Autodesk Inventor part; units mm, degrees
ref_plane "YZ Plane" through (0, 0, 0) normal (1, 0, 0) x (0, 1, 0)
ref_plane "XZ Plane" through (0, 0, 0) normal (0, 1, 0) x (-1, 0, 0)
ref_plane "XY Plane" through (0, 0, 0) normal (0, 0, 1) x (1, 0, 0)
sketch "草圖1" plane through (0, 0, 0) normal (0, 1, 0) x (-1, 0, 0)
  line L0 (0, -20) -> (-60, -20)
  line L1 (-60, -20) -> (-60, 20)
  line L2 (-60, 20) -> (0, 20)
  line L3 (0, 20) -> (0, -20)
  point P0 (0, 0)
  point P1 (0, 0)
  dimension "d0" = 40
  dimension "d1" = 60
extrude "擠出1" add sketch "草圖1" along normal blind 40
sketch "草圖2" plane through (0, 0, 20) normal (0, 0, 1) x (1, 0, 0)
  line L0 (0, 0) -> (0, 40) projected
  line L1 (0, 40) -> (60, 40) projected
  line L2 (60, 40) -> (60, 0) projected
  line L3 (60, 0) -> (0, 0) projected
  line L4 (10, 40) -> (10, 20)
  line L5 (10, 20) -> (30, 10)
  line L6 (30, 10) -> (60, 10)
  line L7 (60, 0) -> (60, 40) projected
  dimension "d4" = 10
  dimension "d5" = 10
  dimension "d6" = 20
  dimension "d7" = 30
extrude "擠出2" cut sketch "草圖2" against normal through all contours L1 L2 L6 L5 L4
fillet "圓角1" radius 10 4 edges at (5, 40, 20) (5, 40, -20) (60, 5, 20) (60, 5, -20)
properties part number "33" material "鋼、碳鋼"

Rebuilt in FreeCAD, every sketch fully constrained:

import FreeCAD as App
import Part
import Sketcher


def edges_at(feature, points):
    """Names of the edges that pass closest to the given points."""
    edges = feature.Shape.Edges
    near = lambda p: min(range(len(edges)), key=lambda i: edges[i].distToShape(Part.Vertex(*p))[0])
    return sorted({f"Edge{near(p) + 1}" for p in points})

doc = App.newDocument("Part")
body = doc.addObject("PartDesign::Body", "Body")

sketch1 = doc.addObject("Sketcher::SketchObject", "Sketch")
body.addObject(sketch1)
sketch1.AttachmentSupport = (doc.XZ_Plane, [""])
sketch1.MapMode = "FlatFace"
sketch1.addGeometry([
    Part.LineSegment(App.Vector(60, -20, 0), App.Vector(0, -20, 0)),
    Part.LineSegment(App.Vector(0, -20, 0), App.Vector(0, 20, 0)),
    Part.LineSegment(App.Vector(0, 20, 0), App.Vector(60, 20, 0)),
    Part.LineSegment(App.Vector(60, 20, 0), App.Vector(60, -20, 0)),
], False)
sketch1.addConstraint([
    Sketcher.Constraint("Coincident", 0, 2, 1, 1),
    Sketcher.Constraint("Coincident", 1, 2, 2, 1),
    Sketcher.Constraint("Coincident", 2, 2, 3, 1),
    Sketcher.Constraint("Coincident", 3, 2, 0, 1),
    Sketcher.Constraint("Horizontal", 0),
    Sketcher.Constraint("Vertical", 1),
    Sketcher.Constraint("Horizontal", 2),
    Sketcher.Constraint("Vertical", 3),
    Sketcher.Constraint("Symmetric", 0, 2, 1, 2, -1, 1),
    Sketcher.Constraint("DistanceX", 0, 2, 0, 1, 60.0),
    Sketcher.Constraint("DistanceY", 1, 1, 1, 2, 40.0),
])
pad1 = doc.addObject("PartDesign::Pad", "Pad")
body.addObject(pad1)
pad1.Profile = sketch1
pad1.Length = 40
pad1.Reversed = True

sketch2 = doc.addObject("Sketcher::SketchObject", "Sketch001")
body.addObject(sketch2)
sketch2.AttachmentSupport = (doc.XY_Plane, [""])
sketch2.MapMode = "FlatFace"
sketch2.AttachmentOffset = App.Placement(App.Vector(0, 0, 20), App.Rotation())
sketch2.addGeometry([
    Part.LineSegment(App.Vector(60, 40, 0), App.Vector(10, 40, 0)),
    Part.LineSegment(App.Vector(10, 40, 0), App.Vector(10, 20, 0)),
    Part.LineSegment(App.Vector(10, 20, 0), App.Vector(30, 10, 0)),
    Part.LineSegment(App.Vector(30, 10, 0), App.Vector(60, 10, 0)),
    Part.LineSegment(App.Vector(60, 10, 0), App.Vector(60, 40, 0)),
], False)
sketch2.addConstraint([
    Sketcher.Constraint("Coincident", 0, 2, 1, 1),
    Sketcher.Constraint("Coincident", 1, 2, 2, 1),
    Sketcher.Constraint("Coincident", 2, 2, 3, 1),
    Sketcher.Constraint("Coincident", 3, 2, 4, 1),
    Sketcher.Constraint("Coincident", 4, 2, 0, 1),
    Sketcher.Constraint("Horizontal", 0),
    Sketcher.Constraint("Vertical", 1),
    Sketcher.Constraint("Horizontal", 3),
    Sketcher.Constraint("Vertical", 4),
    Sketcher.Constraint("Equal", 3, 4),
    Sketcher.Constraint("DistanceX", 3, 1, 3, 2, 30.0),
    Sketcher.Constraint("DistanceY", 1, 2, 1, 1, 20.0),
    Sketcher.Constraint("DistanceX", -1, 1, 0, 2, 10.0),
    Sketcher.Constraint("DistanceY", -1, 1, 1, 2, 20.0),
    Sketcher.Constraint("DistanceX", -1, 1, 2, 2, 30.0),
])
pocket1 = doc.addObject("PartDesign::Pocket", "Pocket")
body.addObject(pocket1)
pocket1.Profile = sketch2
pocket1.Type = "ThroughAll"
doc.recompute()

fillet = doc.addObject("PartDesign::Fillet", "Fillet")
body.addObject(fillet)
fillet.Base = (pocket1, edges_at(pocket1, [
    (5, 40, 20),
    (5, 40, -20),
    (60, 5, 20),
    (60, 5, -20),
]))
fillet.Radius = 10

doc.recompute()
